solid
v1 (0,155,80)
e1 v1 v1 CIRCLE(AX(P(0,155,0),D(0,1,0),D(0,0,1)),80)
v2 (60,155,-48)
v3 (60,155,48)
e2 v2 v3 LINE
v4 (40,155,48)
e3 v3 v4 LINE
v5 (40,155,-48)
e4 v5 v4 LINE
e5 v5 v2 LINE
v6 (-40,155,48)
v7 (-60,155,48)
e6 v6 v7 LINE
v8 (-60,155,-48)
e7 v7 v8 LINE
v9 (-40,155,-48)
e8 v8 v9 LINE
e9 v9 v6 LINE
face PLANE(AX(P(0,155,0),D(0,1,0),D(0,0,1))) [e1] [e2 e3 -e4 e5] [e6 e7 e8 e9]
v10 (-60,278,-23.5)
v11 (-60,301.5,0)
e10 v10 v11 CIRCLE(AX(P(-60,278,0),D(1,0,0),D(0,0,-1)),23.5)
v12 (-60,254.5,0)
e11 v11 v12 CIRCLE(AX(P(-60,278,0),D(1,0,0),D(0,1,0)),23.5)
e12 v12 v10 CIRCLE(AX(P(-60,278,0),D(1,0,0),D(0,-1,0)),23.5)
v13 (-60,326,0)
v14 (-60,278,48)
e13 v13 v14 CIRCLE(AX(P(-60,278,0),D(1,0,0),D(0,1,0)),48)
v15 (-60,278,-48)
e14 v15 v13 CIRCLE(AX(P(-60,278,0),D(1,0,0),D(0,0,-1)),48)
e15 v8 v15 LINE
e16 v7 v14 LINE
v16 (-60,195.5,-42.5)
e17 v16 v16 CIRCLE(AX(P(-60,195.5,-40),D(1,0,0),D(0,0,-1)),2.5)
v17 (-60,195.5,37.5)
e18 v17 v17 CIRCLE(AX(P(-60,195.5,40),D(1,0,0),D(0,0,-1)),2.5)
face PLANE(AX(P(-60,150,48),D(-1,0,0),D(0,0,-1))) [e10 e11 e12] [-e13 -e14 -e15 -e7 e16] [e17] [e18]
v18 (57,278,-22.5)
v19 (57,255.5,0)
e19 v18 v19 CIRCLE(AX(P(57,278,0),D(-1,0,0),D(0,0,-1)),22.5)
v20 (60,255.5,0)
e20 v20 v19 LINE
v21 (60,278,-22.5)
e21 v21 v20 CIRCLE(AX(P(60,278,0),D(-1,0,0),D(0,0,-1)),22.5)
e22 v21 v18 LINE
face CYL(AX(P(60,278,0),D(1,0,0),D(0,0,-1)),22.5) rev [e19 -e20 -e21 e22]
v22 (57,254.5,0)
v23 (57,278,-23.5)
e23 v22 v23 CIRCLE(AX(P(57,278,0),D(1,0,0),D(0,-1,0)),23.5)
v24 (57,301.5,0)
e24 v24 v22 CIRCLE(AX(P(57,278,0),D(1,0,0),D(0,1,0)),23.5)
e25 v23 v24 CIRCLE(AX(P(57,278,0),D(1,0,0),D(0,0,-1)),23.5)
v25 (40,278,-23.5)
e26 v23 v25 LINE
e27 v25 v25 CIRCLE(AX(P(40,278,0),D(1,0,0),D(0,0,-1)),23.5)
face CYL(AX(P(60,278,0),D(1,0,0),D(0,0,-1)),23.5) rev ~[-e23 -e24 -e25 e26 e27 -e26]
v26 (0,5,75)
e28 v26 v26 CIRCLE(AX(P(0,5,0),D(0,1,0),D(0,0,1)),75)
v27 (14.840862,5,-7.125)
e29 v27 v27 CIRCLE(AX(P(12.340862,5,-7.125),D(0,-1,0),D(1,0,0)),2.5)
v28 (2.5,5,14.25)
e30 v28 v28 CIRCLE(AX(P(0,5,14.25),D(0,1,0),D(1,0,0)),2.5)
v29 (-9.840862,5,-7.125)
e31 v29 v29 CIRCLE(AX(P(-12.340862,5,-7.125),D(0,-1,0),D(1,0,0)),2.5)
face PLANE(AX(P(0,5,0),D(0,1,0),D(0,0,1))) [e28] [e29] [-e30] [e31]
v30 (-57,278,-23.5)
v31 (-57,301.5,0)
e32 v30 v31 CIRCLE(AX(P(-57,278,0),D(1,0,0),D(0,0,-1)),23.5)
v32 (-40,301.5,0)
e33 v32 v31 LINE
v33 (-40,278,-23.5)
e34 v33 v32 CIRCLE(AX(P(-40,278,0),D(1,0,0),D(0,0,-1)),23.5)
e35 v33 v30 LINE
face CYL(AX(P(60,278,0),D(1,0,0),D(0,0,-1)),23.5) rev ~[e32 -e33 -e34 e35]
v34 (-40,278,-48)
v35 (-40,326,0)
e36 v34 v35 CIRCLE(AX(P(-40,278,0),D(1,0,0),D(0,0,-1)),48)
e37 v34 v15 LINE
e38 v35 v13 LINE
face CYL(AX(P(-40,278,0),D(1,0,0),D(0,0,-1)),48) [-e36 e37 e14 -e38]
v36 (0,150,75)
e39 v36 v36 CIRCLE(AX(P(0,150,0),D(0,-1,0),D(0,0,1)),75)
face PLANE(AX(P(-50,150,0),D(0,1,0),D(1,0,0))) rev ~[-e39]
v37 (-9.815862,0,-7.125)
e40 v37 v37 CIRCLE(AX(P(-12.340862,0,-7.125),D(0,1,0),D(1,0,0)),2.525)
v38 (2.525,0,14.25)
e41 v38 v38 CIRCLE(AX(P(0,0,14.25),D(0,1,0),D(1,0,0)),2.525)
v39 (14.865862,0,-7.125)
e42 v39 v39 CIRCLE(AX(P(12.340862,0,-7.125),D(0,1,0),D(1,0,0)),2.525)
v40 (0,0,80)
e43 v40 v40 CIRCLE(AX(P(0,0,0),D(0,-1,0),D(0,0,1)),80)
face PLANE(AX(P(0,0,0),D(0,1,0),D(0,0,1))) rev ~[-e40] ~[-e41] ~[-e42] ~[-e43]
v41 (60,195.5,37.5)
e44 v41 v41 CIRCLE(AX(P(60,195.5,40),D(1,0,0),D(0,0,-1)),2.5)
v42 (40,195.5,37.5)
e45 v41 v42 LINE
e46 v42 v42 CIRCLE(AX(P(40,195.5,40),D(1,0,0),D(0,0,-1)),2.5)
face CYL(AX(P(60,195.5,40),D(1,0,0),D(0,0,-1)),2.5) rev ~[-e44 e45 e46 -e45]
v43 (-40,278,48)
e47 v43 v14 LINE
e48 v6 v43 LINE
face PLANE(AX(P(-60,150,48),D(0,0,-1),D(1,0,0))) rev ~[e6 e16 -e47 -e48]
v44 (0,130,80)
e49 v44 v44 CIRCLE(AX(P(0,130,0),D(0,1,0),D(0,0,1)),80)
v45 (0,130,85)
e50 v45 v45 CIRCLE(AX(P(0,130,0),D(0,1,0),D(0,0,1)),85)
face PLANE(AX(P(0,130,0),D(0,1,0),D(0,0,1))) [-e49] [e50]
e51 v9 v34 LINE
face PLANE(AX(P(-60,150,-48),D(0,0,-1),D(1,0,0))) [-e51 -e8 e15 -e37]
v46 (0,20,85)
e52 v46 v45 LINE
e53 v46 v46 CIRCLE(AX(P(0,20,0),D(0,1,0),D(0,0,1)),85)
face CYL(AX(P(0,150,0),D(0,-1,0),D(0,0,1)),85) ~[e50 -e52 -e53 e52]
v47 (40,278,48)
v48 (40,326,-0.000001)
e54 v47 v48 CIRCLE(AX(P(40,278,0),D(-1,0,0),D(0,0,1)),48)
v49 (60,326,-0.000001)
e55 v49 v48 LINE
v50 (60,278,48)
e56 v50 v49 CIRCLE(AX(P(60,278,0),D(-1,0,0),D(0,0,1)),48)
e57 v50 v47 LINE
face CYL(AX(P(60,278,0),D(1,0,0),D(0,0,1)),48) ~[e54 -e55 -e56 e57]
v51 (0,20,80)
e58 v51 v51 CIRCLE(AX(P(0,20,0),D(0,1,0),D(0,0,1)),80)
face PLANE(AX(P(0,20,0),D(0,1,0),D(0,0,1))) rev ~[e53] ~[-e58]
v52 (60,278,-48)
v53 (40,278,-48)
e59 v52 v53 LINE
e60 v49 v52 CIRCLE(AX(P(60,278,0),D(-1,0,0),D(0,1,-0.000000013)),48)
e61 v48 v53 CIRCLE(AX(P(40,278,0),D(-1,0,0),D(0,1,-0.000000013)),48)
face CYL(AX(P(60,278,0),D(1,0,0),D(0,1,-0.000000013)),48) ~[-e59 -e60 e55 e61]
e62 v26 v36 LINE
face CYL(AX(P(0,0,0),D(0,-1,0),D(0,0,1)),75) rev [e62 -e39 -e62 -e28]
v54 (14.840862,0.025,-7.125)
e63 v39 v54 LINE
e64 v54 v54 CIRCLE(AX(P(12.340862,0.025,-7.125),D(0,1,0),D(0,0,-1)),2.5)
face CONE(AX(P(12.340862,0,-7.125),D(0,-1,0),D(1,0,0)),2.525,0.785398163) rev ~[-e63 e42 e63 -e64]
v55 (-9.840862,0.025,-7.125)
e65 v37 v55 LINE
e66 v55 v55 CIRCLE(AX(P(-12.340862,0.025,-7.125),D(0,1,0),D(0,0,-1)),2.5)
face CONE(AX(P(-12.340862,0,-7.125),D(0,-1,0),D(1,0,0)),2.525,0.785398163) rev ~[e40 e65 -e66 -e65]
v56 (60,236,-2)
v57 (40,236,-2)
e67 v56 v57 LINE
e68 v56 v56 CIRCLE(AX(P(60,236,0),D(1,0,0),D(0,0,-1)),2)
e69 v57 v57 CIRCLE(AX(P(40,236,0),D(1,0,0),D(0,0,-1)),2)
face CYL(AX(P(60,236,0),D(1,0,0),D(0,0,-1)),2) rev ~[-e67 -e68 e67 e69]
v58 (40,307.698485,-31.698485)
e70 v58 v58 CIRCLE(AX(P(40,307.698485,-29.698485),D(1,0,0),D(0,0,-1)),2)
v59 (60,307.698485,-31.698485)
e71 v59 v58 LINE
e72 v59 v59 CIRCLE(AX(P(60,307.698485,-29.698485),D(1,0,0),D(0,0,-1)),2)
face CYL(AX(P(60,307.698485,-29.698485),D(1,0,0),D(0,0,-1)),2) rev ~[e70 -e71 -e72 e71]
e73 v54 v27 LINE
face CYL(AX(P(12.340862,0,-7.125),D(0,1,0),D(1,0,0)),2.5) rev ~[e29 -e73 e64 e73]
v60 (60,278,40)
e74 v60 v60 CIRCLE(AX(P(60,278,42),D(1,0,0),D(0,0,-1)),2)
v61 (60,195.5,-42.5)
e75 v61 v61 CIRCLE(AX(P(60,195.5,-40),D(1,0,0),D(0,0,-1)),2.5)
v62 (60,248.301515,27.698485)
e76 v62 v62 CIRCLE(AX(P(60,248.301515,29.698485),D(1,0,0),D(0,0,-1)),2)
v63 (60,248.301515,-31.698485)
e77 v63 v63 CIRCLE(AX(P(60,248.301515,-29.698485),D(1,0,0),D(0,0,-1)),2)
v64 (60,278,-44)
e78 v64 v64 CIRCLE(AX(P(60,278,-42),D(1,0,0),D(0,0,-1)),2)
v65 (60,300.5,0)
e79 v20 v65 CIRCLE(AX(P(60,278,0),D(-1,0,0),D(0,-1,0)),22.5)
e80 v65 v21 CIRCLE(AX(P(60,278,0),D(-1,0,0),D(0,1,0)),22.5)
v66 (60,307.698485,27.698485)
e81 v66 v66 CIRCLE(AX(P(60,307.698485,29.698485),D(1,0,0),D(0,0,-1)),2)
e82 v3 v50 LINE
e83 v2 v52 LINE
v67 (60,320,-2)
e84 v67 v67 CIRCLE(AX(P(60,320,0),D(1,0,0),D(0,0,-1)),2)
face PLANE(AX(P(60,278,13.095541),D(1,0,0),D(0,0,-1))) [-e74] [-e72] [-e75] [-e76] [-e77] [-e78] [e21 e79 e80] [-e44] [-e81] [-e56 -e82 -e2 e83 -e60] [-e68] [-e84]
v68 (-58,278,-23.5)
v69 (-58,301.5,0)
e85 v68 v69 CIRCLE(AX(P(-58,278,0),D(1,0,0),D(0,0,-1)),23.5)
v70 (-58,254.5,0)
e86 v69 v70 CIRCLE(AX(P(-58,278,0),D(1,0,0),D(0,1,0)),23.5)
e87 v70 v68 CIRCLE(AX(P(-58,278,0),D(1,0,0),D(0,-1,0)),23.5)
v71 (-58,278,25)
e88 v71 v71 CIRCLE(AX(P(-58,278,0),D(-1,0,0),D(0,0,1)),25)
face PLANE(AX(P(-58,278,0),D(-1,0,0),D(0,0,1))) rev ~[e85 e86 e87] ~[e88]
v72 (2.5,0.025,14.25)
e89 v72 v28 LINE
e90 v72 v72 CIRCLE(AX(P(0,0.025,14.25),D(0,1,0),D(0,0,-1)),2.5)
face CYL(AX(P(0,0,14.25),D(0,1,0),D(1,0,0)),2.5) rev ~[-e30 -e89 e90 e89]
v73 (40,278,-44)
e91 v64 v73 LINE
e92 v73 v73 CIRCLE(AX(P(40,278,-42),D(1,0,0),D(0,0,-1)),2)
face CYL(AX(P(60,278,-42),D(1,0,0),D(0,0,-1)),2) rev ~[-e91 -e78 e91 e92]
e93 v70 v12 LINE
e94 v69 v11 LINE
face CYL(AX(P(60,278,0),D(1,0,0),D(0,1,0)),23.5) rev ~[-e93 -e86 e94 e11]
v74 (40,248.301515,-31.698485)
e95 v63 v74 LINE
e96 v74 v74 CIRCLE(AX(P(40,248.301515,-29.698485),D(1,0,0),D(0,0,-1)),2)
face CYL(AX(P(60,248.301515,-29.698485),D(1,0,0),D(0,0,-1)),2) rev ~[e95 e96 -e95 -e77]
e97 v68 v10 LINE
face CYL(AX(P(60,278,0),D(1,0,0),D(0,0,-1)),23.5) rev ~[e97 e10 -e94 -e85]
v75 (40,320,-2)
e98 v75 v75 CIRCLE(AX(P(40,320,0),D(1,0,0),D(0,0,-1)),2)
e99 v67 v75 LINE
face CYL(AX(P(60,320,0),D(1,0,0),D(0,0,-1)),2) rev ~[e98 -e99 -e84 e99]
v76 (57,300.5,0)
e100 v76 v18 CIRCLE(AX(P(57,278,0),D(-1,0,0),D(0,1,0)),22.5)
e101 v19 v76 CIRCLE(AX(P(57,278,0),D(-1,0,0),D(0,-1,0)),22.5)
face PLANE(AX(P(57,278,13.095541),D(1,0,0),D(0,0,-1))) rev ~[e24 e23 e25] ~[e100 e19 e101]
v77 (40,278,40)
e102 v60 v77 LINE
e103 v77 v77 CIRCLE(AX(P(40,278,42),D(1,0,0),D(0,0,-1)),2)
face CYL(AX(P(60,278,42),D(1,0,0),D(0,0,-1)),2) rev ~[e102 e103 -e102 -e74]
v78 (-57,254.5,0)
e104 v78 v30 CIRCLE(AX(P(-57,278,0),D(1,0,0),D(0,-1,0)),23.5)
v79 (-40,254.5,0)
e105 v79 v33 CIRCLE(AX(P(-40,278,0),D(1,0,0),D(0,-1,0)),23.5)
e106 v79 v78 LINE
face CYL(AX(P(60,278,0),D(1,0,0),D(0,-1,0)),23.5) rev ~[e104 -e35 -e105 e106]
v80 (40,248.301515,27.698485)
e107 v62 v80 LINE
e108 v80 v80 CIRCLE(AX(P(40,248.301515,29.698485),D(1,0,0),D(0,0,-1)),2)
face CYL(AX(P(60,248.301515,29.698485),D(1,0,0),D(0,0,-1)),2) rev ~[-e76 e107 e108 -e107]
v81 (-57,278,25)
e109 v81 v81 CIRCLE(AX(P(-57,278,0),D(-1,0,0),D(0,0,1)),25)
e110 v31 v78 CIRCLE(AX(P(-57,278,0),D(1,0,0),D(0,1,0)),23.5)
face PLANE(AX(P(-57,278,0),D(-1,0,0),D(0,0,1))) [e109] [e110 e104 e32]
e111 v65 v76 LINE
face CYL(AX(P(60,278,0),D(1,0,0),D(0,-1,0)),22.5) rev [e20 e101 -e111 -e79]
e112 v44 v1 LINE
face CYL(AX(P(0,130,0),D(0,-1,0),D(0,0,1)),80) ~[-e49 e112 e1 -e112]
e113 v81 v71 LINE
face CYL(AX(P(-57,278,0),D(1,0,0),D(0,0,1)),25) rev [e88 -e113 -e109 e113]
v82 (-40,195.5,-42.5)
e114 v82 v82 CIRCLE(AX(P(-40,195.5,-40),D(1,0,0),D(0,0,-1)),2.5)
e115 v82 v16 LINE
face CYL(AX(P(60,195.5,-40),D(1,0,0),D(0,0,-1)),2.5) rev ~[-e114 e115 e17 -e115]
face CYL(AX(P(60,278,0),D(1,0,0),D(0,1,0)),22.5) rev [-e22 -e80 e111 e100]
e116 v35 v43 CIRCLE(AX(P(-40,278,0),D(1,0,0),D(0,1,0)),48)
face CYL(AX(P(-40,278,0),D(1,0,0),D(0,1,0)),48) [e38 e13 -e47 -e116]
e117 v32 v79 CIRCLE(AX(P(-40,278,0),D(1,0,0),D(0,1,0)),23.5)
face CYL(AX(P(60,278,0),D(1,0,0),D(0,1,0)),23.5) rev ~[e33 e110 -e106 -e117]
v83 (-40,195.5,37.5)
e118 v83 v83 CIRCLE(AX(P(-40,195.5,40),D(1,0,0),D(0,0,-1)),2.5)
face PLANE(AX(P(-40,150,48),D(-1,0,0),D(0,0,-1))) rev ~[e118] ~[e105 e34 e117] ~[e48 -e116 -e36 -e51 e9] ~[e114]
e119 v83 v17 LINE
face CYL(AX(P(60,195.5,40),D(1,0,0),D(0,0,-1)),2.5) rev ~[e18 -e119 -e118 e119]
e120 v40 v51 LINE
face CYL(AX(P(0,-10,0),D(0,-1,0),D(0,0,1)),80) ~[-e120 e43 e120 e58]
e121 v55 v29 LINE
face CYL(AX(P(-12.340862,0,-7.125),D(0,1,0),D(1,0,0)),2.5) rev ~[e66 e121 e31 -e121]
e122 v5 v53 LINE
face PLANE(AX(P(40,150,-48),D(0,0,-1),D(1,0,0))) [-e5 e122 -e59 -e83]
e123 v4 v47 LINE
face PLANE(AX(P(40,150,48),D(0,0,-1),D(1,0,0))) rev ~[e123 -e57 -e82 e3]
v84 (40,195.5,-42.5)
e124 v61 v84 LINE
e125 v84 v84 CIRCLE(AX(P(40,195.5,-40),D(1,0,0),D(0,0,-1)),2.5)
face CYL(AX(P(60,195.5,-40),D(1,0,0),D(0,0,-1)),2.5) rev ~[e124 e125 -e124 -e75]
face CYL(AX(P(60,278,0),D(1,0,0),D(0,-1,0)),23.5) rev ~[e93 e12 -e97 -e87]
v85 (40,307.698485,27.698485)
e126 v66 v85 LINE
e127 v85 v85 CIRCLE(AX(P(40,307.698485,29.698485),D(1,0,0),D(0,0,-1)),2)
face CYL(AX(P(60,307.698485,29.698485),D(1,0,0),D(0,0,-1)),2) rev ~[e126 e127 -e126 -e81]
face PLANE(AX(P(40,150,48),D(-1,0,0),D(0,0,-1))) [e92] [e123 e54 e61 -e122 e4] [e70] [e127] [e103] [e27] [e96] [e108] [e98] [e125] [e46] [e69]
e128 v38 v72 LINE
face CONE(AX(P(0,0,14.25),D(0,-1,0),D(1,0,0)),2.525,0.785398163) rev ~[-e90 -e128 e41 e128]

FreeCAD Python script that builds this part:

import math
import FreeCAD as App
import Part
import Sketcher
from FreeCAD import Vector


def add_polygon(sketch, points):
    """Adds a closed chain of lines whose ends are joined by coincident constraints."""
    first, n = sketch.GeometryCount, len(points)
    for a, b in zip(points, points[1:] + points[:1]):
        sketch.addGeometry(Part.LineSegment(App.Vector(*a, 0), App.Vector(*b, 0)), False)
    for i in range(n):
        sketch.addConstraint(Sketcher.Constraint("Coincident", first + i, 2, first + (i + 1) % n, 1))

doc = App.newDocument("Part")
body = doc.addObject("PartDesign::Body", "Body")

# Sketch on XZ plane
sketch1 = doc.addObject("Sketcher::SketchObject", "Sketch")
body.addObject(sketch1)
sketch1.AttachmentSupport = (doc.XZ_Plane, [""])
sketch1.MapMode = "FlatFace"
sketch1.addGeometry(Part.Circle(Vector(0, 0, 0), Vector(0, 0, 1), 85), False)
sketch1.addGeometry(Part.Circle(Vector(0, 0, 0), Vector(0, 0, 1), 75), False)
sketch1.addConstraint(Sketcher.Constraint("Coincident", 0, 3, -1, 1))
sketch1.addConstraint(Sketcher.Constraint("Coincident", 1, 3, -1, 1))
sketch1.addConstraint(Sketcher.Constraint("Diameter", 0, 170.0))
sketch1.addConstraint(Sketcher.Constraint("Diameter", 1, 150.0))
pad1 = doc.addObject("PartDesign::Pad", "Pad")
body.addObject(pad1)
pad1.Profile = sketch1
pad1.Length = 150
pad1.Reversed = True

# Sketch on XZ plane
sketch2 = doc.addObject("Sketcher::SketchObject", "Sketch001")
body.addObject(sketch2)
sketch2.AttachmentSupport = (doc.XZ_Plane, [""])
sketch2.MapMode = "FlatFace"
sketch2.addGeometry(Part.Circle(Vector(0, 0, 0), Vector(0, 0, 1), 80), False)
sketch2.addGeometry(Part.Circle(Vector(0, 0, 0), Vector(0, 0, 1), 75), False)
sketch2.addConstraint(Sketcher.Constraint("Coincident", 0, 3, -1, 1))
sketch2.addConstraint(Sketcher.Constraint("Coincident", 1, 3, -1, 1))
sketch2.addConstraint(Sketcher.Constraint("Diameter", 0, 160.0))
sketch2.addConstraint(Sketcher.Constraint("Diameter", 1, 150.0))
pocket1 = doc.addObject("PartDesign::Pocket", "Pocket")
body.addObject(pocket1)
pocket1.Profile = sketch2
pocket1.Length = 155

# Sketch on XZ plane
sketch3 = doc.addObject("Sketcher::SketchObject", "Sketch002")
body.addObject(sketch3)
sketch3.AttachmentSupport = (doc.XZ_Plane, [""])
sketch3.MapMode = "FlatFace"
sketch3.AttachmentOffset = App.Placement(Vector(0, 0, -150), App.Rotation())
sketch3.addGeometry(Part.Circle(Vector(0, 0, 0), Vector(0, 0, 1), 85), False)
sketch3.addConstraint(Sketcher.Constraint("Coincident", 0, 3, -1, 1))
sketch3.addConstraint(Sketcher.Constraint("Diameter", 0, 170.0))
pad2 = doc.addObject("PartDesign::Pad", "Pad001")
body.addObject(pad2)
pad2.Profile = sketch3
pad2.Length = 5
pad2.Reversed = True

# Sketch on XZ plane
sketch4 = doc.addObject("Sketcher::SketchObject", "Sketch003")
body.addObject(sketch4)
sketch4.AttachmentSupport = (doc.XZ_Plane, [""])
sketch4.MapMode = "FlatFace"
sketch4.AttachmentOffset = App.Placement(Vector(0, 0, -150), App.Rotation())
add_polygon(sketch4, [(40, -48), (40, 48), (60, 48), (60, -48)])  # lines 0-3
sketch4.addConstraint(Sketcher.Constraint("Vertical", 0))
sketch4.addConstraint(Sketcher.Constraint("Horizontal", 1))
sketch4.addConstraint(Sketcher.Constraint("Vertical", 2))
sketch4.addConstraint(Sketcher.Constraint("Horizontal", 3))
sketch4.addConstraint(Sketcher.Constraint("DistanceX", 1, 1, 1, 2, 20.0))
sketch4.addConstraint(Sketcher.Constraint("DistanceY", 0, 1, 0, 2, 96.0))
sketch4.addConstraint(Sketcher.Constraint("DistanceX", -1, 1, 0, 2, 40.0))
sketch4.addConstraint(Sketcher.Constraint("DistanceY", -1, 1, 0, 2, 48.0))
pad3 = doc.addObject("PartDesign::Pad", "Pad002")
body.addObject(pad3)
pad3.Profile = sketch4
pad3.Length = 176
pad3.Reversed = True

# Sketch on XZ plane
sketch5 = doc.addObject("Sketcher::SketchObject", "Sketch004")
body.addObject(sketch5)
sketch5.AttachmentSupport = (doc.XZ_Plane, [""])
sketch5.MapMode = "FlatFace"
sketch5.AttachmentOffset = App.Placement(Vector(0, 0, -150), App.Rotation())
add_polygon(sketch5, [(-60, -48), (-60, 48), (-40, 48), (-40, -48)])  # lines 0-3
sketch5.addConstraint(Sketcher.Constraint("Vertical", 0))
sketch5.addConstraint(Sketcher.Constraint("Horizontal", 1))
sketch5.addConstraint(Sketcher.Constraint("Vertical", 2))
sketch5.addConstraint(Sketcher.Constraint("Horizontal", 3))
sketch5.addConstraint(Sketcher.Constraint("DistanceX", 1, 1, 1, 2, 20.0))
sketch5.addConstraint(Sketcher.Constraint("DistanceY", 0, 1, 0, 2, 96.0))
sketch5.addConstraint(Sketcher.Constraint("DistanceX", 0, 2, -1, 1, 60.0))
sketch5.addConstraint(Sketcher.Constraint("DistanceY", -1, 1, 0, 2, 48.0))
pad4 = doc.addObject("PartDesign::Pad", "Pad003")
body.addObject(pad4)
pad4.Profile = sketch5
pad4.Length = 176
pad4.Reversed = True

# Sketch on YZ plane
sketch6 = doc.addObject("Sketcher::SketchObject", "Sketch005")
body.addObject(sketch6)
sketch6.AttachmentSupport = (doc.YZ_Plane, [""])
sketch6.MapMode = "FlatFace"
sketch6.AttachmentOffset = App.Placement(Vector(0, 0, 60), App.Rotation())
sketch6.addGeometry(Part.Circle(Vector(278, 0, 0), Vector(0, 0, 1), 24), False)
sketch6.addConstraint(Sketcher.Constraint("PointOnObject", 0, 3, -1))
sketch6.addConstraint(Sketcher.Constraint("Diameter", 0, 47.0))
sketch6.addConstraint(Sketcher.Constraint("DistanceX", -1, 1, 0, 3, 278.0))
pocket2 = doc.addObject("PartDesign::Pocket", "Pocket001")
body.addObject(pocket2)
pocket2.Profile = sketch6
pocket2.Length = 90

# Sketch on YZ plane
sketch7 = doc.addObject("Sketcher::SketchObject", "Sketch006")
body.addObject(sketch7)
sketch7.AttachmentSupport = (doc.YZ_Plane, [""])
sketch7.MapMode = "FlatFace"
sketch7.AttachmentOffset = App.Placement(Vector(0, 0, 60), App.Rotation())
sketch7.addGeometry(Part.ArcOfCircle(Part.Circle(Vector(278, 0, 0), Vector(0, 0, 1), 24), math.radians(0), math.radians(180)), False)
sketch7.addGeometry(Part.ArcOfCircle(Part.Circle(Vector(278, 0, 0), Vector(0, 0, 1), 24), math.radians(180), math.radians(270)), False)
sketch7.addGeometry(Part.ArcOfCircle(Part.Circle(Vector(278, 0, 0), Vector(0, 0, 1), 24), math.radians(-90), math.radians(0)), False)
sketch7.addConstraint(Sketcher.Constraint("Tangent", 0, 2, 1, 1))
sketch7.addConstraint(Sketcher.Constraint("Tangent", 1, 2, 2, 1))
sketch7.addConstraint(Sketcher.Constraint("Tangent", 2, 2, 0, 1))
sketch7.addConstraint(Sketcher.Constraint("PointOnObject", 0, 3, -1))
sketch7.addConstraint(Sketcher.Constraint("PointOnObject", 0, 2, -1))
sketch7.addConstraint(Sketcher.Constraint("PointOnObject", 2, 2, -1))
sketch7.addConstraint(Sketcher.Constraint("Vertical", 2, 3, 1, 2))
sketch7.addConstraint(Sketcher.Constraint("Radius", 0, 23.5))
sketch7.addConstraint(Sketcher.Constraint("DistanceX", -1, 1, 0, 3, 278.0))
pocket3 = doc.addObject("PartDesign::Pocket", "Pocket002")
body.addObject(pocket3)
pocket3.Profile = sketch7
pocket3.Length = 120

# Sketch on YZ plane
sketch8 = doc.addObject("Sketcher::SketchObject", "Sketch007")
body.addObject(sketch8)
sketch8.AttachmentSupport = (doc.YZ_Plane, [""])
sketch8.MapMode = "FlatFace"
sketch8.AttachmentOffset = App.Placement(Vector(0, 0, 60), App.Rotation())
sketch8.addGeometry(Part.LineSegment(Vector(326, 48, 0), Vector(278, 48, 0)), False)
sketch8.addGeometry(Part.ArcOfCircle(Part.Circle(Vector(278, 0, 0), Vector(0, 0, 1), 48), math.radians(0), math.radians(90)), False)
sketch8.addGeometry(Part.LineSegment(Vector(326, 0, 0), Vector(326, 48, 0)), False)
sketch8.addGeometry(Part.ArcOfCircle(Part.Circle(Vector(278, 0, 0), Vector(0, 0, 1), 48), math.radians(-90), math.radians(0)), False)
sketch8.addGeometry(Part.LineSegment(Vector(278, -48, 0), Vector(326, -48, 0)), False)
sketch8.addGeometry(Part.LineSegment(Vector(326, -48, 0), Vector(326, 0, 0)), False)
sketch8.addConstraint(Sketcher.Constraint("Tangent", 0, 2, 1, 2))
sketch8.addConstraint(Sketcher.Constraint("Tangent", 1, 1, 2, 1))
sketch8.addConstraint(Sketcher.Constraint("Coincident", 2, 2, 0, 1))
sketch8.addConstraint(Sketcher.Constraint("Tangent", 3, 1, 4, 1))
sketch8.addConstraint(Sketcher.Constraint("Coincident", 4, 2, 5, 1))
sketch8.addConstraint(Sketcher.Constraint("Tangent", 5, 2, 3, 2))
sketch8.addConstraint(Sketcher.Constraint("Horizontal", 0))
sketch8.addConstraint(Sketcher.Constraint("Vertical", 2))
sketch8.addConstraint(Sketcher.Constraint("Horizontal", 4))
sketch8.addConstraint(Sketcher.Constraint("Vertical", 5))
sketch8.addConstraint(Sketcher.Constraint("Coincident", 3, 3, 1, 3))
sketch8.addConstraint(Sketcher.Constraint("Equal", 1, 3))
sketch8.addConstraint(Sketcher.Constraint("PointOnObject", 1, 3, -1))
sketch8.addConstraint(Sketcher.Constraint("Radius", 1, 48.0))
sketch8.addConstraint(Sketcher.Constraint("DistanceX", -1, 1, 1, 3, 278.0))
pocket4 = doc.addObject("PartDesign::Pocket", "Pocket003")
body.addObject(pocket4)
pocket4.Profile = sketch8
pocket4.Length = 20

# Sketch on YZ plane
sketch9 = doc.addObject("Sketcher::SketchObject", "Sketch008")
body.addObject(sketch9)
sketch9.AttachmentSupport = (doc.YZ_Plane, [""])
sketch9.MapMode = "FlatFace"
sketch9.AttachmentOffset = App.Placement(Vector(0, 0, -40), App.Rotation())
sketch9.addGeometry(Part.LineSegment(Vector(326, -48, 0), Vector(278, -48, 0)), False)
sketch9.addGeometry(Part.ArcOfCircle(Part.Circle(Vector(278, 0, 0), Vector(0, 0, 1), 48), math.radians(-90), math.radians(0)), False)
sketch9.addGeometry(Part.LineSegment(Vector(326, 0, 0), Vector(326, -48, 0)), False)
sketch9.addGeometry(Part.ArcOfCircle(Part.Circle(Vector(278, 0, 0), Vector(0, 0, 1), 48), math.radians(0), math.radians(90)), False)
sketch9.addGeometry(Part.LineSegment(Vector(278, 48, 0), Vector(326, 48, 0)), False)
sketch9.addGeometry(Part.LineSegment(Vector(326, 48, 0), Vector(326, 0, 0)), False)
sketch9.addConstraint(Sketcher.Constraint("Tangent", 0, 2, 1, 1))
sketch9.addConstraint(Sketcher.Constraint("Tangent", 1, 2, 2, 1))
sketch9.addConstraint(Sketcher.Constraint("Coincident", 2, 2, 0, 1))
sketch9.addConstraint(Sketcher.Constraint("Tangent", 3, 2, 4, 1))
sketch9.addConstraint(Sketcher.Constraint("Coincident", 4, 2, 5, 1))
sketch9.addConstraint(Sketcher.Constraint("Tangent", 5, 2, 3, 1))
sketch9.addConstraint(Sketcher.Constraint("Horizontal", 0))
sketch9.addConstraint(Sketcher.Constraint("Vertical", 2))
sketch9.addConstraint(Sketcher.Constraint("Horizontal", 4))
sketch9.addConstraint(Sketcher.Constraint("Vertical", 5))
sketch9.addConstraint(Sketcher.Constraint("Coincident", 3, 3, 1, 3))
sketch9.addConstraint(Sketcher.Constraint("Equal", 1, 3))
sketch9.addConstraint(Sketcher.Constraint("PointOnObject", 1, 3, -1))
sketch9.addConstraint(Sketcher.Constraint("Radius", 1, 48.0))
sketch9.addConstraint(Sketcher.Constraint("DistanceX", -1, 1, 1, 3, 278.0))
pocket5 = doc.addObject("PartDesign::Pocket", "Pocket004")
body.addObject(pocket5)
pocket5.Profile = sketch9
pocket5.Length = 20

# Sketch on YZ plane
sketch10 = doc.addObject("Sketcher::SketchObject", "Sketch009")
body.addObject(sketch10)
sketch10.AttachmentSupport = (doc.YZ_Plane, [""])
sketch10.MapMode = "FlatFace"
sketch10.AttachmentOffset = App.Placement(Vector(0, 0, 60), App.Rotation())
sketch10.addGeometry(Part.Circle(Vector(320, 0, 0), Vector(0, 0, 1), 2), False)
sketch10.addGeometry(Part.Circle(Vector(307.7, -29.7, 0), Vector(0, 0, 1), 2), False)
sketch10.addGeometry(Part.Circle(Vector(278, -42, 0), Vector(0, 0, 1), 2), False)
sketch10.addGeometry(Part.Circle(Vector(248.3, -29.7, 0), Vector(0, 0, 1), 2), False)
sketch10.addGeometry(Part.Circle(Vector(236, 0, 0), Vector(0, 0, 1), 2), False)
sketch10.addGeometry(Part.Circle(Vector(248.3, 29.7, 0), Vector(0, 0, 1), 2), False)
sketch10.addGeometry(Part.Circle(Vector(278, 42, 0), Vector(0, 0, 1), 2), False)
sketch10.addGeometry(Part.Circle(Vector(307.7, 29.7, 0), Vector(0, 0, 1), 2), False)
sketch10.addConstraint(Sketcher.Constraint("Equal", 0, 1))
sketch10.addConstraint(Sketcher.Constraint("Equal", 1, 2))
sketch10.addConstraint(Sketcher.Constraint("Equal", 2, 3))
sketch10.addConstraint(Sketcher.Constraint("Equal", 3, 4))
sketch10.addConstraint(Sketcher.Constraint("Equal", 4, 5))
sketch10.addConstraint(Sketcher.Constraint("Equal", 5, 6))
sketch10.addConstraint(Sketcher.Constraint("Equal", 6, 7))
sketch10.addConstraint(Sketcher.Constraint("Symmetric", 3, 3, 5, 3, -1))
sketch10.addConstraint(Sketcher.Constraint("Symmetric", 2, 3, 6, 3, -1))
sketch10.addConstraint(Sketcher.Constraint("Symmetric", 1, 3, 7, 3, -1))
sketch10.addConstraint(Sketcher.Constraint("PointOnObject", 0, 3, -1))
sketch10.addConstraint(Sketcher.Constraint("PointOnObject", 4, 3, -1))
sketch10.addConstraint(Sketcher.Constraint("Horizontal", 1, 3, 3, 3))
sketch10.addConstraint(Sketcher.Constraint("Diameter", 0, 4.0))
sketch10.addConstraint(Sketcher.Constraint("DistanceX", -1, 1, 0, 3, 320.0))
sketch10.addConstraint(Sketcher.Constraint("DistanceX", -1, 1, 2, 3, 278.0))
sketch10.addConstraint(Sketcher.Constraint("DistanceY", 2, 3, -1, 1, 42.0))
sketch10.addConstraint(Sketcher.Constraint("DistanceX", -1, 1, 4, 3, 236.0))
sketch10.addConstraint(Sketcher.Constraint("DistanceX", 3, 3, 1, 3, 59.39697))
sketch10.addConstraint(Sketcher.Constraint("DistanceY", 3, 3, 5, 3, 59.39697))
sketch10.addConstraint(Sketcher.Constraint("DistanceX", -1, 1, 1, 3, 307.698485))
pocket6 = doc.addObject("PartDesign::Pocket", "Pocket005")
body.addObject(pocket6)
pocket6.Profile = sketch10
pocket6.Length = 20

# Sketch on YZ plane
sketch11 = doc.addObject("Sketcher::SketchObject", "Sketch010")
body.addObject(sketch11)
sketch11.AttachmentSupport = (doc.YZ_Plane, [""])
sketch11.MapMode = "FlatFace"
sketch11.AttachmentOffset = App.Placement(Vector(0, 0, 60), App.Rotation())
sketch11.addGeometry(Part.Circle(Vector(195.5, 40, 0), Vector(0, 0, 1), 2.5), False)
sketch11.addGeometry(Part.Circle(Vector(195.5, -40, 0), Vector(0, 0, 1), 2.5), False)
sketch11.addConstraint(Sketcher.Constraint("Equal", 0, 1))
sketch11.addConstraint(Sketcher.Constraint("Symmetric", 0, 3, 1, 3, -1))
sketch11.addConstraint(Sketcher.Constraint("Diameter", 0, 5.0))
sketch11.addConstraint(Sketcher.Constraint("DistanceY", -1, 1, 0, 3, 40.0))
sketch11.addConstraint(Sketcher.Constraint("DistanceX", -1, 1, 0, 3, 195.5))
pocket7 = doc.addObject("PartDesign::Pocket", "Pocket006")
body.addObject(pocket7)
pocket7.Profile = sketch11
pocket7.Length = 131

# Sketch on XZ plane
sketch12 = doc.addObject("Sketcher::SketchObject", "Sketch011")
body.addObject(sketch12)
sketch12.AttachmentSupport = (doc.XZ_Plane, [""])
sketch12.MapMode = "FlatFace"
sketch12.addGeometry(Part.Circle(Vector(0, 0, 0), Vector(0, 0, 1), 80), False)
sketch12.addGeometry(Part.Circle(Vector(0, 0, 0), Vector(0, 0, 1), 75), False)
sketch12.addConstraint(Sketcher.Constraint("Coincident", 0, 3, -1, 1))
sketch12.addConstraint(Sketcher.Constraint("Coincident", 1, 3, -1, 1))
sketch12.addConstraint(Sketcher.Constraint("Diameter", 0, 160.0))
sketch12.addConstraint(Sketcher.Constraint("Diameter", 1, 150.0))
pad5 = doc.addObject("PartDesign::Pad", "Pad004")
body.addObject(pad5)
pad5.Profile = sketch12
pad5.Length = 155
pad5.Reversed = True

# Sketch on XZ plane
sketch13 = doc.addObject("Sketcher::SketchObject", "Sketch012")
body.addObject(sketch13)
sketch13.AttachmentSupport = (doc.XZ_Plane, [""])
sketch13.MapMode = "FlatFace"
sketch13.addGeometry(Part.Circle(Vector(0, 0, 0), Vector(0, 0, 1), 85), False)
sketch13.addGeometry(Part.Circle(Vector(0, 0, 0), Vector(0, 0, 1), 80), False)
sketch13.addConstraint(Sketcher.Constraint("Coincident", 0, 3, -1, 1))
sketch13.addConstraint(Sketcher.Constraint("Coincident", 1, 3, -1, 1))
sketch13.addConstraint(Sketcher.Constraint("Diameter", 0, 170.0))
sketch13.addConstraint(Sketcher.Constraint("Diameter", 1, 160.0))
pocket8 = doc.addObject("PartDesign::Pocket", "Pocket007")
body.addObject(pocket8)
pocket8.Profile = sketch13
pocket8.Type = "TwoLengths"
pocket8.Length = 20
pocket8.Length2 = 10

# Sketch on XZ plane
sketch14 = doc.addObject("Sketcher::SketchObject", "Sketch013")
body.addObject(sketch14)
sketch14.AttachmentSupport = (doc.XZ_Plane, [""])
sketch14.MapMode = "FlatFace"
sketch14.AttachmentOffset = App.Placement(Vector(0, 0, -130), App.Rotation())
sketch14.addGeometry(Part.Circle(Vector(0, 0, 0), Vector(0, 0, 1), 85), False)
sketch14.addGeometry(Part.Circle(Vector(0, 0, 0), Vector(0, 0, 1), 80), False)
sketch14.addConstraint(Sketcher.Constraint("Coincident", 0, 3, -1, 1))
sketch14.addConstraint(Sketcher.Constraint("Coincident", 1, 3, -1, 1))
sketch14.addConstraint(Sketcher.Constraint("Diameter", 0, 170.0))
sketch14.addConstraint(Sketcher.Constraint("Diameter", 1, 160.0))
pocket9 = doc.addObject("PartDesign::Pocket", "Pocket008")
body.addObject(pocket9)
pocket9.Profile = sketch14
pocket9.Length = 25

# Sketch on XZ plane
sketch15 = doc.addObject("Sketcher::SketchObject", "Sketch014")
body.addObject(sketch15)
sketch15.AttachmentSupport = (doc.XZ_Plane, [""])
sketch15.MapMode = "FlatFace"
sketch15.addGeometry(Part.Circle(Vector(0, 0, 0), Vector(0, 0, 1), 75), False)
sketch15.addConstraint(Sketcher.Constraint("Coincident", 0, 3, -1, 1))
sketch15.addConstraint(Sketcher.Constraint("Diameter", 0, 150.0))
pad6 = doc.addObject("PartDesign::Pad", "Pad005")
body.addObject(pad6)
pad6.Profile = sketch15
pad6.Length = 5
pad6.Reversed = True

# Sketch on XZ plane
sketch16 = doc.addObject("Sketcher::SketchObject", "Sketch015")
body.addObject(sketch16)
sketch16.AttachmentSupport = (doc.XZ_Plane, [""])
sketch16.MapMode = "FlatFace"
sketch16.addGeometry(Part.Circle(Vector(-12.3, -7.1, 0), Vector(0, 0, 1), 2.5), False)
sketch16.addGeometry(Part.Circle(Vector(12.3, -7.1, 0), Vector(0, 0, 1), 2.5), False)
sketch16.addGeometry(Part.Circle(Vector(0, 14.2, 0), Vector(0, 0, 1), 2.5), False)
sketch16.addConstraint(Sketcher.Constraint("Equal", 0, 1))
sketch16.addConstraint(Sketcher.Constraint("Equal", 1, 2))
sketch16.addConstraint(Sketcher.Constraint("Symmetric", 0, 3, 1, 3, -2))
sketch16.addConstraint(Sketcher.Constraint("PointOnObject", 2, 3, -2))
sketch16.addConstraint(Sketcher.Constraint("Diameter", 0, 5.0))
sketch16.addConstraint(Sketcher.Constraint("DistanceY", -1, 1, 2, 3, 14.25))
sketch16.addConstraint(Sketcher.Constraint("DistanceY", 0, 3, -1, 1, 7.125))
sketch16.addConstraint(Sketcher.Constraint("DistanceX", 0, 3, -1, 1, 12.340862))
doc.recompute()
hole = doc.addObject("PartDesign::Hole", "Hole")
body.addObject(hole)
hole.Profile = sketch16
hole.ThreadType = "None"
hole.Diameter = 5
hole.DepthType = "Dimension"
hole.Depth = 5
hole.DrillPoint = "Angled"
hole.DrillPointAngle = 118
hole.HoleCutType = "Countersink"
hole.HoleCutDiameter = 5.05
hole.HoleCutCountersinkAngle = 90

# Sketch on YZ plane
sketch17 = doc.addObject("Sketcher::SketchObject", "Sketch016")
body.addObject(sketch17)
sketch17.AttachmentSupport = (doc.YZ_Plane, [""])
sketch17.MapMode = "FlatFace"
sketch17.AttachmentOffset = App.Placement(Vector(0, 0, 60), App.Rotation())
sketch17.addGeometry(Part.ArcOfCircle(Part.Circle(Vector(278, 0, 0), Vector(0, 0, 1), 24), math.radians(0), math.radians(180)), False)
sketch17.addGeometry(Part.ArcOfCircle(Part.Circle(Vector(278, 0, 0), Vector(0, 0, 1), 24), math.radians(180), math.radians(270)), False)
sketch17.addGeometry(Part.ArcOfCircle(Part.Circle(Vector(278, 0, 0), Vector(0, 0, 1), 24), math.radians(-90), math.radians(0)), False)
sketch17.addGeometry(Part.ArcOfCircle(Part.Circle(Vector(278, 0, 0), Vector(0, 0, 1), 22), math.radians(0), math.radians(180)), False)
sketch17.addGeometry(Part.ArcOfCircle(Part.Circle(Vector(278, 0, 0), Vector(0, 0, 1), 22), math.radians(-90), math.radians(0)), False)
sketch17.addGeometry(Part.ArcOfCircle(Part.Circle(Vector(278, 0, 0), Vector(0, 0, 1), 22), math.radians(180), math.radians(270)), False)
sketch17.addConstraint(Sketcher.Constraint("Tangent", 0, 2, 1, 1))
sketch17.addConstraint(Sketcher.Constraint("Tangent", 1, 2, 2, 1))
sketch17.addConstraint(Sketcher.Constraint("Tangent", 2, 2, 0, 1))
sketch17.addConstraint(Sketcher.Constraint("Tangent", 3, 1, 4, 2))
sketch17.addConstraint(Sketcher.Constraint("Tangent", 4, 1, 5, 2))
sketch17.addConstraint(Sketcher.Constraint("Tangent", 5, 1, 3, 2))
sketch17.addConstraint(Sketcher.Constraint("Coincident", 3, 3, 0, 3))
sketch17.addConstraint(Sketcher.Constraint("PointOnObject", 0, 3, -1))
sketch17.addConstraint(Sketcher.Constraint("PointOnObject", 0, 2, -1))
sketch17.addConstraint(Sketcher.Constraint("PointOnObject", 2, 2, -1))
sketch17.addConstraint(Sketcher.Constraint("PointOnObject", 3, 1, -1))
sketch17.addConstraint(Sketcher.Constraint("PointOnObject", 5, 1, -1))
sketch17.addConstraint(Sketcher.Constraint("Vertical", 5, 3, 1, 2))
sketch17.addConstraint(Sketcher.Constraint("Vertical", 1, 2, 4, 1))
sketch17.addConstraint(Sketcher.Constraint("Radius", 0, 23.5))
sketch17.addConstraint(Sketcher.Constraint("Radius", 3, 22.5))
sketch17.addConstraint(Sketcher.Constraint("DistanceX", -1, 1, 0, 3, 278.0))
pad7 = doc.addObject("PartDesign::Pad", "Pad006")
body.addObject(pad7)
pad7.Profile = sketch17
pad7.Length = 3
pad7.Reversed = True

# Sketch on YZ plane
sketch18 = doc.addObject("Sketcher::SketchObject", "Sketch017")
body.addObject(sketch18)
sketch18.AttachmentSupport = (doc.YZ_Plane, [""])
sketch18.MapMode = "FlatFace"
sketch18.AttachmentOffset = App.Placement(Vector(0, 0, -57), App.Rotation())
sketch18.addGeometry(Part.Circle(Vector(278, 0, 0), Vector(0, 0, 1), 25), False)
sketch18.addConstraint(Sketcher.Constraint("PointOnObject", 0, 3, -1))
sketch18.addConstraint(Sketcher.Constraint("Diameter", 0, 50.0))
sketch18.addConstraint(Sketcher.Constraint("DistanceX", -1, 1, 0, 3, 278.0))
pocket10 = doc.addObject("PartDesign::Pocket", "Pocket009")
body.addObject(pocket10)
pocket10.Profile = sketch18
pocket10.Length = 1

doc.recompute()
